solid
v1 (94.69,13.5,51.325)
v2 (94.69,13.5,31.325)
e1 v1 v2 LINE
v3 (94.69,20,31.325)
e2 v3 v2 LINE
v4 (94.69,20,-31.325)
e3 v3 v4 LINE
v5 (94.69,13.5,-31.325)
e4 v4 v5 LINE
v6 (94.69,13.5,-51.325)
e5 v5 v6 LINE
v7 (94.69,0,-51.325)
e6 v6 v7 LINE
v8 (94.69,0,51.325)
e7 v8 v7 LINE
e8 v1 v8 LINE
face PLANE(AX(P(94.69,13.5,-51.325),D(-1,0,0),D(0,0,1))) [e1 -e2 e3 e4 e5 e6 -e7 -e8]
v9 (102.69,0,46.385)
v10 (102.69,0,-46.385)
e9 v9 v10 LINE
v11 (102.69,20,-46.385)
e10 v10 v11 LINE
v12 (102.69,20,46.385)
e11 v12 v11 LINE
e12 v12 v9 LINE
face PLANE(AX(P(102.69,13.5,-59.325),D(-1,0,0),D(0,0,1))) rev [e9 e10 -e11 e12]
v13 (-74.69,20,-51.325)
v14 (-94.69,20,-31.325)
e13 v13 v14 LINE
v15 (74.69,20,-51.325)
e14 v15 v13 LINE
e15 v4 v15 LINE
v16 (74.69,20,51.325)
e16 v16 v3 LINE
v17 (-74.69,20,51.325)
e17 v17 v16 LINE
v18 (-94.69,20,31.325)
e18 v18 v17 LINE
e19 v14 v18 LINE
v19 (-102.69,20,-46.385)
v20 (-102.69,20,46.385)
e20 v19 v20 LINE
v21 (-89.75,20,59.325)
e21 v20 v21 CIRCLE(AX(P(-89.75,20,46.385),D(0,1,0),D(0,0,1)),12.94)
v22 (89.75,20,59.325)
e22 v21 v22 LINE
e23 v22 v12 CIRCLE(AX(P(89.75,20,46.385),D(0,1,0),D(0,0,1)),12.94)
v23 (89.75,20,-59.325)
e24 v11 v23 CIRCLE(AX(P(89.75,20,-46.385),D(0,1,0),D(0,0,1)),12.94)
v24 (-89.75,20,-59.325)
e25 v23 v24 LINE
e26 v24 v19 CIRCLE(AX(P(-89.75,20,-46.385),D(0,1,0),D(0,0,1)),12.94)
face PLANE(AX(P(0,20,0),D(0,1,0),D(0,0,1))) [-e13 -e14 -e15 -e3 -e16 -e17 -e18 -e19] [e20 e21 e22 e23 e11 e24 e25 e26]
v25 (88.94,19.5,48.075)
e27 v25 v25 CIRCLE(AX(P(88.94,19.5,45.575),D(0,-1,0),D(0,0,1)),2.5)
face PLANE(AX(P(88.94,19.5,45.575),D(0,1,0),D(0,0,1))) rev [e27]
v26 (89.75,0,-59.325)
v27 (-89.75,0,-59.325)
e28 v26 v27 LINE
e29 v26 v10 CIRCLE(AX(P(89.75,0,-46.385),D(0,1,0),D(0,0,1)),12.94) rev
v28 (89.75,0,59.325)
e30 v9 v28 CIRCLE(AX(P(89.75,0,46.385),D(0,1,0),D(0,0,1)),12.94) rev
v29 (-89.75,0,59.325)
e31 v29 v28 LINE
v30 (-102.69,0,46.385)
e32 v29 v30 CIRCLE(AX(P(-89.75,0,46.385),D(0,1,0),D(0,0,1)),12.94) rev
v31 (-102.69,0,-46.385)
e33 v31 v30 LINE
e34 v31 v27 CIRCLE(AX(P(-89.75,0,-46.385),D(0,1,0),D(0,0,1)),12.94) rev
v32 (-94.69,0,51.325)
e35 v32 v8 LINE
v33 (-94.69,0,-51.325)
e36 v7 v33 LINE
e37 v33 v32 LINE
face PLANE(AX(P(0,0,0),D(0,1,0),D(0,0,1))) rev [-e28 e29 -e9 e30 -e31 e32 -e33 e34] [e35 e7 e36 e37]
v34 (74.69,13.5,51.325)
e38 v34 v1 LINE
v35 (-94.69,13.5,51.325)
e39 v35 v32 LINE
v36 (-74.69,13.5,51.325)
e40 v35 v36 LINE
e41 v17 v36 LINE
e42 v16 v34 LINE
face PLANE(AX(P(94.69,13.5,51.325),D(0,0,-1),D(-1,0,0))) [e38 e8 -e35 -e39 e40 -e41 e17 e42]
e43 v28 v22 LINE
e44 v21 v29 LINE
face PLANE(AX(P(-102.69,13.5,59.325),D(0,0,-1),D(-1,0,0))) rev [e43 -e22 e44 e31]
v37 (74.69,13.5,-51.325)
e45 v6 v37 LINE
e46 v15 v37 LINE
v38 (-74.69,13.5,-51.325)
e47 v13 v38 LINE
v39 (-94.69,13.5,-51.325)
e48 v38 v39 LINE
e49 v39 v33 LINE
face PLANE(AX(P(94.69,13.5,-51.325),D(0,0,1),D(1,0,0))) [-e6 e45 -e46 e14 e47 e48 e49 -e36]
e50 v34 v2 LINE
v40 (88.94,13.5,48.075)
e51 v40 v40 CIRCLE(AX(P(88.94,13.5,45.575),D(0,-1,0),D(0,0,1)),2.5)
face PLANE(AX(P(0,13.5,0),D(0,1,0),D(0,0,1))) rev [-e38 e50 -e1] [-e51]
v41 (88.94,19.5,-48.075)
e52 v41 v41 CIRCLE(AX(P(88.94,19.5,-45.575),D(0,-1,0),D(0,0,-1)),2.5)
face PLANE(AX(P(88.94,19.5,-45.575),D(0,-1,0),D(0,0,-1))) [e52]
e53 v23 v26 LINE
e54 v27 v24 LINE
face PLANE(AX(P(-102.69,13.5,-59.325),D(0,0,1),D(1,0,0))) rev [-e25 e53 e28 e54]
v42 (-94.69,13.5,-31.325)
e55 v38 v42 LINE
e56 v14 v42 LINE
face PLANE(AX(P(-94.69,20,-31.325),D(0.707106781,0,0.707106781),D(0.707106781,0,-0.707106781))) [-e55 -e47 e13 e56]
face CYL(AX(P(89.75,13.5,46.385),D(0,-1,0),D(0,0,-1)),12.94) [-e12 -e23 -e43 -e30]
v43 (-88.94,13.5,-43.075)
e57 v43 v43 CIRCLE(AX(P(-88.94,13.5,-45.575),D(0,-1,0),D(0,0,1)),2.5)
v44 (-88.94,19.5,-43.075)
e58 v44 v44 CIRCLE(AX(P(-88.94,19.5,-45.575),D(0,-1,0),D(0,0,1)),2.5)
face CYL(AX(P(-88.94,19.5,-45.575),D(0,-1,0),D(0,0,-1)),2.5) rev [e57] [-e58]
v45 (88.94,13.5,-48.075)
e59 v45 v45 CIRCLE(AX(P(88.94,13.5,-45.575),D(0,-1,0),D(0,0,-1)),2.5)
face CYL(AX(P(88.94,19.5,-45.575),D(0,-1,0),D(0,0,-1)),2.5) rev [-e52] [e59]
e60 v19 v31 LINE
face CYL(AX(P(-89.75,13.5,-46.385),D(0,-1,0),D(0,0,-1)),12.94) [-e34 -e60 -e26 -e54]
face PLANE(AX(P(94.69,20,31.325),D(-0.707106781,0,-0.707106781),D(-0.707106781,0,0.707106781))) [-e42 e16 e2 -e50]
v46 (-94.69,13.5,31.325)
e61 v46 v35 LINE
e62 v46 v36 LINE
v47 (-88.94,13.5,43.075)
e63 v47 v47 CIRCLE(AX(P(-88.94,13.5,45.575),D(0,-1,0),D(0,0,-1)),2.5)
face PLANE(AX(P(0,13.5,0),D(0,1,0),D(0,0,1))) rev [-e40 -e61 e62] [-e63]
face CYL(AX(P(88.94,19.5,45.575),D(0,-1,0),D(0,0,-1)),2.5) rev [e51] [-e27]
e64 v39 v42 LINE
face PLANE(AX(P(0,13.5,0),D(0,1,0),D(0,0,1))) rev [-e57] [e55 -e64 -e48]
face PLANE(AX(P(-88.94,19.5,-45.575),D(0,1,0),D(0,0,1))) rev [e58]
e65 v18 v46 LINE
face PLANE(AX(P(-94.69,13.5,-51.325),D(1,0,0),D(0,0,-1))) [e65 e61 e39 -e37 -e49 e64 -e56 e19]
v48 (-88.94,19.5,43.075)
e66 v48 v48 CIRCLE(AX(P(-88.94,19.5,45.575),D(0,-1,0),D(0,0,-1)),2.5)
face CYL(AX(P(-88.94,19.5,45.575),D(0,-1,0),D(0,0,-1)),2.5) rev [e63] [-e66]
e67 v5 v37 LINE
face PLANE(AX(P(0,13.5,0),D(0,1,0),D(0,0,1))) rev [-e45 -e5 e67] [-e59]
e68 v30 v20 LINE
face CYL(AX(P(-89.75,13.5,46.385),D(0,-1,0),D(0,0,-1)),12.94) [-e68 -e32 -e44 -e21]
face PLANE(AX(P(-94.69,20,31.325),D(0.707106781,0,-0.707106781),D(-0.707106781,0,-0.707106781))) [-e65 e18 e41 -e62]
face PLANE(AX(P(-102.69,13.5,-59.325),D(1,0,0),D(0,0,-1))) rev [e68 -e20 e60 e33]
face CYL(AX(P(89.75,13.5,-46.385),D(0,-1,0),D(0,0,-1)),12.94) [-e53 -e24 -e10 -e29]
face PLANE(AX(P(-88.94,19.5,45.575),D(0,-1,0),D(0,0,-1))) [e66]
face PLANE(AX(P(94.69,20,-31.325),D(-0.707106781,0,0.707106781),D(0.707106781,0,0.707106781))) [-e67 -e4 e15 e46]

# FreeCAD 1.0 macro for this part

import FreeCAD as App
import Part
import Sketcher


def edges_at(feature, points):
    """Names of the edges that pass closest to the given points."""
    edges = feature.Shape.Edges
    near = lambda p: min(range(len(edges)), key=lambda i: edges[i].distToShape(Part.Vertex(*p))[0])
    return sorted({f"Edge{near(p) + 1}" for p in points})

doc = App.newDocument("Part")
body = doc.addObject("PartDesign::Body", "Body")

# Sketch on XZ plane
sketch1 = doc.addObject("Sketcher::SketchObject", "Sketch")
body.addObject(sketch1)
sketch1.AttachmentSupport = (doc.XZ_Plane, [""])
sketch1.MapMode = "FlatFace"
sketch1.addGeometry(Part.LineSegment(App.Vector(-103, -59, 0), App.Vector(-103, 59, 0)), False)
sketch1.addGeometry(Part.LineSegment(App.Vector(-103, 59, 0), App.Vector(103, 59, 0)), False)
sketch1.addGeometry(Part.LineSegment(App.Vector(103, 59, 0), App.Vector(103, -59, 0)), False)
sketch1.addGeometry(Part.LineSegment(App.Vector(103, -59, 0), App.Vector(-103, -59, 0)), False)
sketch1.addGeometry(Part.LineSegment(App.Vector(95, 51, 0), App.Vector(-95, 51, 0)), False)
sketch1.addGeometry(Part.LineSegment(App.Vector(-95, 51, 0), App.Vector(-95, -51, 0)), False)
sketch1.addGeometry(Part.LineSegment(App.Vector(-95, -51, 0), App.Vector(95, -51, 0)), False)
sketch1.addGeometry(Part.LineSegment(App.Vector(95, -51, 0), App.Vector(95, 51, 0)), False)
sketch1.addConstraint(Sketcher.Constraint("Coincident", 0, 2, 1, 1))
sketch1.addConstraint(Sketcher.Constraint("Coincident", 1, 2, 2, 1))
sketch1.addConstraint(Sketcher.Constraint("Coincident", 2, 2, 3, 1))
sketch1.addConstraint(Sketcher.Constraint("Coincident", 3, 2, 0, 1))
sketch1.addConstraint(Sketcher.Constraint("Coincident", 4, 2, 5, 1))
sketch1.addConstraint(Sketcher.Constraint("Coincident", 5, 2, 6, 1))
sketch1.addConstraint(Sketcher.Constraint("Coincident", 6, 2, 7, 1))
sketch1.addConstraint(Sketcher.Constraint("Coincident", 7, 2, 4, 1))
sketch1.addConstraint(Sketcher.Constraint("Vertical", 0))
sketch1.addConstraint(Sketcher.Constraint("Horizontal", 1))
sketch1.addConstraint(Sketcher.Constraint("Vertical", 2))
sketch1.addConstraint(Sketcher.Constraint("Horizontal", 3))
sketch1.addConstraint(Sketcher.Constraint("Horizontal", 4))
sketch1.addConstraint(Sketcher.Constraint("Vertical", 5))
sketch1.addConstraint(Sketcher.Constraint("Horizontal", 6))
sketch1.addConstraint(Sketcher.Constraint("Vertical", 7))
sketch1.addConstraint(Sketcher.Constraint("Symmetric", 0, 2, 2, 2, -1, 1))
sketch1.addConstraint(Sketcher.Constraint("Symmetric", 4, 2, 6, 2, -1, 1))
sketch1.addConstraint(Sketcher.Constraint("DistanceX", 0, 2, 4, 2, 8.0))
sketch1.addConstraint(Sketcher.Constraint("DistanceY", 4, 2, 0, 2, 8.0))
sketch1.addConstraint(Sketcher.Constraint("DistanceX", 1, 1, 1, 2, 205.38))
sketch1.addConstraint(Sketcher.Constraint("DistanceY", 0, 1, 0, 2, 118.65))
pad1 = doc.addObject("PartDesign::Pad", "Pad")
body.addObject(pad1)
pad1.Profile = sketch1
pad1.Length = 13.5
pad1.Reversed = True

# Sketch on XZ plane
sketch2 = doc.addObject("Sketcher::SketchObject", "Sketch001")
body.addObject(sketch2)
sketch2.AttachmentSupport = (doc.XZ_Plane, [""])
sketch2.MapMode = "FlatFace"
sketch2.AttachmentOffset = App.Placement(App.Vector(0, 0, -13.5), App.Rotation())
sketch2.addGeometry(Part.LineSegment(App.Vector(-103, -59, 0), App.Vector(-103, 59, 0)), False)
sketch2.addGeometry(Part.LineSegment(App.Vector(-103, 59, 0), App.Vector(103, 59, 0)), False)
sketch2.addGeometry(Part.LineSegment(App.Vector(103, 59, 0), App.Vector(103, -59, 0)), False)
sketch2.addGeometry(Part.LineSegment(App.Vector(103, -59, 0), App.Vector(-103, -59, 0)), False)
sketch2.addGeometry(Part.LineSegment(App.Vector(-95, 31, 0), App.Vector(-95, -31, 0)), False)
sketch2.addGeometry(Part.LineSegment(App.Vector(-95, -31, 0), App.Vector(-75, -51, 0)), False)
sketch2.addGeometry(Part.LineSegment(App.Vector(-75, -51, 0), App.Vector(75, -51, 0)), False)
sketch2.addGeometry(Part.LineSegment(App.Vector(75, -51, 0), App.Vector(95, -31, 0)), False)
sketch2.addGeometry(Part.LineSegment(App.Vector(95, -31, 0), App.Vector(95, 31, 0)), False)
sketch2.addGeometry(Part.LineSegment(App.Vector(95, 31, 0), App.Vector(75, 51, 0)), False)
sketch2.addGeometry(Part.LineSegment(App.Vector(75, 51, 0), App.Vector(-75, 51, 0)), False)
sketch2.addGeometry(Part.LineSegment(App.Vector(-75, 51, 0), App.Vector(-95, 31, 0)), False)
sketch2.addConstraint(Sketcher.Constraint("Coincident", 0, 2, 1, 1))
sketch2.addConstraint(Sketcher.Constraint("Coincident", 1, 2, 2, 1))
sketch2.addConstraint(Sketcher.Constraint("Coincident", 2, 2, 3, 1))
sketch2.addConstraint(Sketcher.Constraint("Coincident", 3, 2, 0, 1))
sketch2.addConstraint(Sketcher.Constraint("Coincident", 4, 2, 5, 1))
sketch2.addConstraint(Sketcher.Constraint("Coincident", 5, 2, 6, 1))
sketch2.addConstraint(Sketcher.Constraint("Coincident", 6, 2, 7, 1))
sketch2.addConstraint(Sketcher.Constraint("Coincident", 7, 2, 8, 1))
sketch2.addConstraint(Sketcher.Constraint("Coincident", 8, 2, 9, 1))
sketch2.addConstraint(Sketcher.Constraint("Coincident", 9, 2, 10, 1))
sketch2.addConstraint(Sketcher.Constraint("Coincident", 10, 2, 11, 1))
sketch2.addConstraint(Sketcher.Constraint("Coincident", 11, 2, 4, 1))
sketch2.addConstraint(Sketcher.Constraint("Vertical", 0))
sketch2.addConstraint(Sketcher.Constraint("Horizontal", 1))
sketch2.addConstraint(Sketcher.Constraint("Vertical", 2))
sketch2.addConstraint(Sketcher.Constraint("Horizontal", 3))
sketch2.addConstraint(Sketcher.Constraint("Vertical", 4))
sketch2.addConstraint(Sketcher.Constraint("Horizontal", 6))
sketch2.addConstraint(Sketcher.Constraint("Vertical", 8))
sketch2.addConstraint(Sketcher.Constraint("Horizontal", 10))
sketch2.addConstraint(Sketcher.Constraint("Symmetric", 0, 2, 2, 2, -1, 1))
sketch2.addConstraint(Sketcher.Constraint("Symmetric", 4, 2, 8, 2, -1, 1))
sketch2.addConstraint(Sketcher.Constraint("Symmetric", 5, 2, 9, 2, -1, 1))
sketch2.addConstraint(Sketcher.Constraint("Perpendicular", 5, 7))
sketch2.addConstraint(Sketcher.Constraint("Perpendicular", 9, 11))
sketch2.addConstraint(Sketcher.Constraint("Horizontal", 4, 2, 7, 2))
sketch2.addConstraint(Sketcher.Constraint("Horizontal", 8, 2, 11, 2))
sketch2.addConstraint(Sketcher.Constraint("Vertical", 6, 2, 9, 2))
sketch2.addConstraint(Sketcher.Constraint("DistanceX", 3, 2, 4, 2, 8.0))
sketch2.addConstraint(Sketcher.Constraint("DistanceY", 3, 2, 4, 2, 28.0))
sketch2.addConstraint(Sketcher.Constraint("DistanceX", 4, 2, 5, 2, 20.0))
sketch2.addConstraint(Sketcher.Constraint("DistanceX", 1, 1, 1, 2, 205.38))
sketch2.addConstraint(Sketcher.Constraint("DistanceY", 0, 1, 0, 2, 118.65))
pad2 = doc.addObject("PartDesign::Pad", "Pad001")
body.addObject(pad2)
pad2.Profile = sketch2
pad2.Length = 6.5
pad2.Reversed = True

# Sketch on XZ plane
sketch3 = doc.addObject("Sketcher::SketchObject", "Sketch002")
body.addObject(sketch3)
sketch3.AttachmentSupport = (doc.XZ_Plane, [""])
sketch3.MapMode = "FlatFace"
sketch3.AttachmentOffset = App.Placement(App.Vector(0, 0, -13.5), App.Rotation())
sketch3.addGeometry(Part.Circle(App.Vector(-88.9, 45.6, 0), App.Vector(0, 0, 1), 2.5), False)
sketch3.addGeometry(Part.Circle(App.Vector(88.9, 45.6, 0), App.Vector(0, 0, 1), 2.5), False)
sketch3.addGeometry(Part.Circle(App.Vector(88.9, -45.6, 0), App.Vector(0, 0, 1), 2.5), False)
sketch3.addGeometry(Part.Circle(App.Vector(-88.9, -45.6, 0), App.Vector(0, 0, 1), 2.5), False)
sketch3.addConstraint(Sketcher.Constraint("Equal", 0, 1))
sketch3.addConstraint(Sketcher.Constraint("Equal", 1, 2))
sketch3.addConstraint(Sketcher.Constraint("Equal", 2, 3))
sketch3.addConstraint(Sketcher.Constraint("Symmetric", 0, 3, 2, 3, -1, 1))
sketch3.addConstraint(Sketcher.Constraint("Symmetric", 1, 3, 3, 3, -1, 1))
sketch3.addConstraint(Sketcher.Constraint("Symmetric", 0, 3, 1, 3, -2))
sketch3.addConstraint(Sketcher.Constraint("Diameter", 0, 5.0))
sketch3.addConstraint(Sketcher.Constraint("DistanceX", 0, 3, -1, 1, 88.94))
sketch3.addConstraint(Sketcher.Constraint("DistanceY", 2, 3, 1, 3, 91.15))
pocket1 = doc.addObject("PartDesign::Pocket", "Pocket")
body.addObject(pocket1)
pocket1.Profile = sketch3
pocket1.Length = 6
doc.recompute()

fillet = doc.addObject("PartDesign::Fillet", "Fillet")
body.addObject(fillet)
fillet.Base = (pocket1, edges_at(pocket1, [
    (102.69, 10, 59.325),
    (-102.69, 10, 59.325),
    (-102.69, 10, -59.325),
    (102.69, 10, -59.325),
]))
fillet.Radius = 12.94

doc.recompute()
